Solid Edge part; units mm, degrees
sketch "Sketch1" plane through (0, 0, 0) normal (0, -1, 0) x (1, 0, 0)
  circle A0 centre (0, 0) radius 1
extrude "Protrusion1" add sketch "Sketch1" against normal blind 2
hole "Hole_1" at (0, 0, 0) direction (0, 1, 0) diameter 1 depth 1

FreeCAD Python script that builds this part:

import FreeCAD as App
import Part
import Sketcher
Q = App.Units.Quantity

doc = App.newDocument("Part")
body = doc.addObject("PartDesign::Body", "Body")

sketch1 = doc.addObject("Sketcher::SketchObject", "Sketch")
body.addObject(sketch1)
sketch1.AttachmentSupport = (doc.XZ_Plane, [""])
sketch1.MapMode = "FlatFace"
sketch1.addGeometry(Part.Circle(App.Vector(0, 0, 0), App.Vector(0, 0, 1), 1), False)
sketch1.addConstraint([
    Sketcher.Constraint("Coincident", 0, 3, -1, 1),
    Sketcher.Constraint("Diameter", 0, Q("2 mm")),
])
pad1 = doc.addObject("PartDesign::Pad", "Pad")
body.addObject(pad1)
pad1.Profile = sketch1
pad1.Length = 2
pad1.Reversed = True

sketch2 = doc.addObject("Sketcher::SketchObject", "Sketch001")
body.addObject(sketch2)
sketch2.AttachmentSupport = (doc.XZ_Plane, [""])
sketch2.MapMode = "FlatFace"
sketch2.addGeometry(Part.Circle(App.Vector(0, 0, 0), App.Vector(0, 0, 1), 0.5), False)
sketch2.addConstraint([
    Sketcher.Constraint("Coincident", 0, 3, -1, 1),
    Sketcher.Constraint("Diameter", 0, Q("1 mm")),
])
doc.recompute()
hole = doc.addObject("PartDesign::Hole", "Hole")
body.addObject(hole)
hole.Profile = sketch2
hole.ThreadType = "None"
hole.Diameter = 1
hole.DepthType = "Dimension"
hole.Depth = 1
hole.DrillPoint = "Flat"

doc.recompute()
